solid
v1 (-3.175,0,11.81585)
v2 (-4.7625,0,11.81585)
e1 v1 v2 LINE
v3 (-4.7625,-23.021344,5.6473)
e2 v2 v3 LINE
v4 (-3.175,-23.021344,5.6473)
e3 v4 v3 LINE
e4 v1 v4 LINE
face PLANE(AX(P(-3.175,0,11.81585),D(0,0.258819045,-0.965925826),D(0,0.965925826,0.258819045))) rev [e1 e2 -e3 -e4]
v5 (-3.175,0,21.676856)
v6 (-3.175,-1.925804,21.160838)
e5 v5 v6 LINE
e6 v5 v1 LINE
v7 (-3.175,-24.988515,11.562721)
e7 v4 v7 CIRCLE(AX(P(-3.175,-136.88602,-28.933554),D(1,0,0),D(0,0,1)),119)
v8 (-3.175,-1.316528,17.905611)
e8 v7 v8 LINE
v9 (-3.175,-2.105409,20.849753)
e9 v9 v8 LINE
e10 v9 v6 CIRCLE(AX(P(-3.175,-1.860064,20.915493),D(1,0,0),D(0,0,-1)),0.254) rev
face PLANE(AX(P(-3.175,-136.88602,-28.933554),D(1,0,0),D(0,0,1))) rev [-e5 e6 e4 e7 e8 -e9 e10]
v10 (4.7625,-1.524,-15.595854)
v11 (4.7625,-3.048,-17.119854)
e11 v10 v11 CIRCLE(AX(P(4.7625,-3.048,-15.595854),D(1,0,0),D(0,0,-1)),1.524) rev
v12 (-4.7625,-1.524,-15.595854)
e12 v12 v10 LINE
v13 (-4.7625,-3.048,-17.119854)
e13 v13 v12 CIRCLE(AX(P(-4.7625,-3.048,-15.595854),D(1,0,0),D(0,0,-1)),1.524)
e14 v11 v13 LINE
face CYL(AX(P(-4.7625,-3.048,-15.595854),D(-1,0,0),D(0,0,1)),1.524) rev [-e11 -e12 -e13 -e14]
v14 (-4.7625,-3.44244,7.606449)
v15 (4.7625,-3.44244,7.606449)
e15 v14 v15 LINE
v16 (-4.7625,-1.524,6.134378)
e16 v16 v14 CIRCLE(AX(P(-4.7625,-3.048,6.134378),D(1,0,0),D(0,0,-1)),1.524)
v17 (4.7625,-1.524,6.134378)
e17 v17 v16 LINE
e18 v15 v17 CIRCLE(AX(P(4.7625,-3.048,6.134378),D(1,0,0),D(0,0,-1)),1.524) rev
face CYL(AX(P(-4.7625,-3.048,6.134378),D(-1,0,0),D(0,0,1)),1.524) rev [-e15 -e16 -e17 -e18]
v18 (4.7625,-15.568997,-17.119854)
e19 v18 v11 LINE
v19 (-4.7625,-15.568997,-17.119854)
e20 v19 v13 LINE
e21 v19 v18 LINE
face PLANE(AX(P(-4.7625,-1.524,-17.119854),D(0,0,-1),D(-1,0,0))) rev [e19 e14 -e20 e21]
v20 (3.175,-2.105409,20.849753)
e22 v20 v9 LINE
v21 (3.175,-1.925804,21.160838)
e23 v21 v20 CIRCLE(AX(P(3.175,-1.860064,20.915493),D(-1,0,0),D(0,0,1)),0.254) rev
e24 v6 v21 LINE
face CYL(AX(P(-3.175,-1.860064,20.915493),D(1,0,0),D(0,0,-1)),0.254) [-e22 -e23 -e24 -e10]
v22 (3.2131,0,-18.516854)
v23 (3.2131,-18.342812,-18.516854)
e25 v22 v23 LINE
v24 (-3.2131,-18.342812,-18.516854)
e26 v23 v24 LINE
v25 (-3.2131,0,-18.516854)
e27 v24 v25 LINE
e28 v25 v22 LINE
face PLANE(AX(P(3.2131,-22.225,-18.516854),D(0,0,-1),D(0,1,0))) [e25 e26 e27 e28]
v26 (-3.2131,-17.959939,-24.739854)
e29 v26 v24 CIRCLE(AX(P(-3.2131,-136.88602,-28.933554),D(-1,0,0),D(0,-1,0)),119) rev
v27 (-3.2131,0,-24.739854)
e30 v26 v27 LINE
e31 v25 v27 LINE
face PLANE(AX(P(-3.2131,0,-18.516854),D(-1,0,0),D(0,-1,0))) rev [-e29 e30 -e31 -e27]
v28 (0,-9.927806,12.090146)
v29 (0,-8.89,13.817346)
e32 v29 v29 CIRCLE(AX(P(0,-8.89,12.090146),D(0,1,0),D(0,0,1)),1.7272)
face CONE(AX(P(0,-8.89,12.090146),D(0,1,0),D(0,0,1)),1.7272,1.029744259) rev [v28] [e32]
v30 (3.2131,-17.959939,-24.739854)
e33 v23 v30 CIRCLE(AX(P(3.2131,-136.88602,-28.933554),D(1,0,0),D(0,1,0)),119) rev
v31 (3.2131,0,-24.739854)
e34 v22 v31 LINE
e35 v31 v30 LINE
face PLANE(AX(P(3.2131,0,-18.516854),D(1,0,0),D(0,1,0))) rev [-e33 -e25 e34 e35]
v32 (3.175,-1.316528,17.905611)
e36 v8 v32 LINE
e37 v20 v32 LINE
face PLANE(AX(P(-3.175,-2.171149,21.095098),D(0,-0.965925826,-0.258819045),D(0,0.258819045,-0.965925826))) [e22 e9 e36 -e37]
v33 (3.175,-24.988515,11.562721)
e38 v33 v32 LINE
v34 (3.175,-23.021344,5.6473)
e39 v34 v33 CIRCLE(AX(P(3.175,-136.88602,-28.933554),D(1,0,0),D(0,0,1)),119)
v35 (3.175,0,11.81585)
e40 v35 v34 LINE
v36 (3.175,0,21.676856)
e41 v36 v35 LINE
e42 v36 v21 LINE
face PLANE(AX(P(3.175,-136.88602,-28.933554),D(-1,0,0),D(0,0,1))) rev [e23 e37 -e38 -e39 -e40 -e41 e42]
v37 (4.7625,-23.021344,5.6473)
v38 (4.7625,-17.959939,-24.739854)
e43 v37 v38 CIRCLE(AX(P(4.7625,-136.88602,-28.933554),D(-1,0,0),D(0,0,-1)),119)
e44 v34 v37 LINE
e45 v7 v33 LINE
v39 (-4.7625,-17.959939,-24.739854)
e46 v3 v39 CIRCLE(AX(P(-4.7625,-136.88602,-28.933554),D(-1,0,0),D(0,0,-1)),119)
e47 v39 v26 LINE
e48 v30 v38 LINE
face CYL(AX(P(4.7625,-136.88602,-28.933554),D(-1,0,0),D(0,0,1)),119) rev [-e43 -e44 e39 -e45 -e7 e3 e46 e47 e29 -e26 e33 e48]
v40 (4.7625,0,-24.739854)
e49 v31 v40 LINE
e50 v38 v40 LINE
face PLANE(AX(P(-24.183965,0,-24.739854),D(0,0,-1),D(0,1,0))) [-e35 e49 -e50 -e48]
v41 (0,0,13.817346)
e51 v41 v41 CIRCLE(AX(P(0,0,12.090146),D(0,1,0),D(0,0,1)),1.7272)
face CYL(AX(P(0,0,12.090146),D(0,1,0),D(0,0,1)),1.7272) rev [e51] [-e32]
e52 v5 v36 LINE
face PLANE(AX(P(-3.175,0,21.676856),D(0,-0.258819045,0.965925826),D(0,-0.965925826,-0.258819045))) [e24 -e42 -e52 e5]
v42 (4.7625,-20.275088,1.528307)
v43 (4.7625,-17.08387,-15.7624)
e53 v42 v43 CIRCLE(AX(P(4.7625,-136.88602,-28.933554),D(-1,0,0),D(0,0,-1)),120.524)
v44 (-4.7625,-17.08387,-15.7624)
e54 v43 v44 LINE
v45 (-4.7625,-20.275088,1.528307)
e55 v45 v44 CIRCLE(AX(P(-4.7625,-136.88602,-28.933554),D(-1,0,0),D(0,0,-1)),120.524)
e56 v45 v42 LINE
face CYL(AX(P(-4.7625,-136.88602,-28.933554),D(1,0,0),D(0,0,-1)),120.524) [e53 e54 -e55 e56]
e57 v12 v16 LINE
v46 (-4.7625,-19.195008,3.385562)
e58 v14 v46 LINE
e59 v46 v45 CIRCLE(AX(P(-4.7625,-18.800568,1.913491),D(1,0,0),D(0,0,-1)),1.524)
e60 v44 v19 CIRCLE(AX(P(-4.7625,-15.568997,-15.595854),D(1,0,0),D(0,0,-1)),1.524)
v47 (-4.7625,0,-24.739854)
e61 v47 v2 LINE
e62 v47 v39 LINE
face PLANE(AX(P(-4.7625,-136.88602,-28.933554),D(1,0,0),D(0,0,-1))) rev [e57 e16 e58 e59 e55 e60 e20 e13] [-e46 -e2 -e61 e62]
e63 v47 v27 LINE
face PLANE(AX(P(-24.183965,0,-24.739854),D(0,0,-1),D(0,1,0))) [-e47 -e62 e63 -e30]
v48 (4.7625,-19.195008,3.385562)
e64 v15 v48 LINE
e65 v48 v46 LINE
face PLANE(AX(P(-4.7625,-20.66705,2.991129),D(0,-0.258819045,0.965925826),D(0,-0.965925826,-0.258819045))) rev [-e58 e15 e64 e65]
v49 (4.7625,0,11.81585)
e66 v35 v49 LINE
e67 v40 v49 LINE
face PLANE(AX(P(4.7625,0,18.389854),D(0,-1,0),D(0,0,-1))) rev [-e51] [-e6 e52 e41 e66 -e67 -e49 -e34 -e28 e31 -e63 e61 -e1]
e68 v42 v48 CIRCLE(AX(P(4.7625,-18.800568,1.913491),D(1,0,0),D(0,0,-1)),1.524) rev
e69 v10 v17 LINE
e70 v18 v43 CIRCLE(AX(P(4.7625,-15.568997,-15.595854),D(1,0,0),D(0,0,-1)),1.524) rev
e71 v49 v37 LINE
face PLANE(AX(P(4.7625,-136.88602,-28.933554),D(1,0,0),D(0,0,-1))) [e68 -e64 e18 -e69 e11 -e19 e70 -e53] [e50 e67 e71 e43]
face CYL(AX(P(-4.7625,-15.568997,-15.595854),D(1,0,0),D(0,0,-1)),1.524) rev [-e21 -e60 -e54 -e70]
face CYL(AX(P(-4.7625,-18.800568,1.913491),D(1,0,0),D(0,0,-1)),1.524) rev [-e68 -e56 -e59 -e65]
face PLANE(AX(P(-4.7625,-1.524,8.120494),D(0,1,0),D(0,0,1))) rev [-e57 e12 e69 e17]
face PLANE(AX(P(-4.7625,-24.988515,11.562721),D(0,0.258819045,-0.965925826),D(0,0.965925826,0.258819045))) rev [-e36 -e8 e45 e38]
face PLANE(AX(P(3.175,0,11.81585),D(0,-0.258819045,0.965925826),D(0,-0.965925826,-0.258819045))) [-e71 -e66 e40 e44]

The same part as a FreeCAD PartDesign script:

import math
import FreeCAD as App
import Part
import Sketcher
Q = App.Units.Quantity


def edges_at(feature, points):
    """Names of the edges that pass closest to the given points."""
    edges = feature.Shape.Edges
    near = lambda p: min(range(len(edges)), key=lambda i: edges[i].distToShape(Part.Vertex(*p))[0])
    return sorted({f"Edge{near(p) + 1}" for p in points})


def add_polygon(sketch, points):
    """Adds a closed chain of lines whose ends are joined by coincident constraints."""
    first, n = sketch.GeometryCount, len(points)
    for a, b in zip(points, points[1:] + points[:1]):
        sketch.addGeometry(Part.LineSegment(App.Vector(*a, 0), App.Vector(*b, 0)), False)
    for i in range(n):
        sketch.addConstraint(Sketcher.Constraint("Coincident", first + i, 2, first + (i + 1) % n, 1))

doc = App.newDocument("Part")
params = doc.addObject("Spreadsheet::Sheet", "Params")
for row, (alias, value) in enumerate([
    ("pad1_length", "0.375 in"),
    ("sketch2_diameter", "0.136 in"),
    ("hole_diameter", "0.136 in"),
    ("hole_depth", "0.35 in"),
    ("sketch3_height", "0.25 in"),
    ("pad2_length", "0.375 in"),
    ("sketch4_width", "0.253 in"),
    ("sketch4_height", "0.875 in"),
    ("pocket1_length", "0.245 in"),
    ("pocket2_length", "0.0625 in"),
    ("fillet_radius", "0.06 in"),
    ("sketch7_length", "0.125 in"),
    ("sketch7_length2", "0.055 in"),
    ("pad3_length", "0.25 in"),
    ("fillet2_radius", "0.01 in"),
    ("sketch8_length", "0.005 in"),
], start=1):
    params.set(f"A{row}", alias)
    params.set(f"B{row}", "=" + value)
    params.setAlias(f"B{row}", alias)

body = doc.addObject("PartDesign::Body", "Body")

# Sketch on YZ plane
sketch1 = body.newObject("Sketcher::SketchObject", "Sketch")
sketch1.AttachmentSupport = (doc.getObject("YZ_Plane"), [""])
sketch1.MapMode = "FlatFace"
sketch1.addGeometry([
    Part.LineSegment(App.Vector(0, -18.389854, 0), App.Vector(0, 18.389854, 0)),
    Part.LineSegment(App.Vector(0, 18.389854, 0), App.Vector(-25.031958, 11.682561, 0)),
    Part.ArcOfCircle(Part.Circle(App.Vector(-136.88602, -28.933554, 0), App.Vector(0, 0, 1), 119), math.radians(5.083216), math.radians(19.956822)),
    Part.LineSegment(App.Vector(-18.35404, -18.389854, 0), App.Vector(0, -18.389854, 0)),
], False)
sketch1.addConstraint([
    Sketcher.Constraint("Coincident", 0, 2, 1, 1),
    Sketcher.Constraint("Coincident", 1, 2, 2, 2),
    Sketcher.Constraint("Coincident", 2, 1, 3, 1),
    Sketcher.Constraint("Coincident", 3, 2, 0, 1),
    Sketcher.Constraint("Vertical", 0),
    Sketcher.Constraint("Horizontal", 3),
    Sketcher.Constraint("Symmetric", 0, 2, 3, 2, -1, 1),
    Sketcher.Constraint("Angle", 1, Q("-165 deg")),
    Sketcher.Constraint("Radius", 2, 119.0),
    Sketcher.Constraint("DistanceX", 3, 1, 3, 2, Q("0.7226 in")),
    Sketcher.Constraint("DistanceY", 2, 3, 2, 1, 10.5437),
    Sketcher.Constraint("Distance", 1, 25.91499),
])
pad1 = body.newObject("PartDesign::Pad", "Pad")
pad1.Profile = sketch1
pad1.setExpression("Length", "Params.pad1_length")
pad1.Midplane = True

# Sketch on XZ plane
sketch2 = body.newObject("Sketcher::SketchObject", "Sketch001")
sketch2.AttachmentSupport = (doc.getObject("XZ_Plane"), [""])
sketch2.MapMode = "FlatFace"
sketch2.addGeometry(Part.Circle(App.Vector(0, 12.090146, 0), App.Vector(0, 0, 1), 1.7272), False)
sketch2.addConstraint([
    Sketcher.Constraint("PointOnObject", 0, 3, -2),
    Sketcher.Constraint("Diameter", 0, Q("0.136 in")),
    Sketcher.Constraint("DistanceY", -1, 1, 0, 3, 12.090146),
])
sketch2.setExpression("Constraints[1]", "Params.sketch2_diameter")
doc.recompute()
hole = body.newObject("PartDesign::Hole", "Hole")
hole.Profile = sketch2
hole.ThreadType = "None"
hole.setExpression("Diameter", "Params.hole_diameter")
hole.DepthType = "Dimension"
hole.setExpression("Depth", "Params.hole_depth")
hole.DrillPoint = "Angled"
hole.DrillPointAngle = 118
hole.Reversed = True

# Sketch on YZ plane
sketch3 = body.newObject("Sketcher::SketchObject", "Sketch002")
sketch3.AttachmentSupport = (doc.getObject("YZ_Plane"), [""])
sketch3.MapMode = "FlatFace"
sketch3.AttachmentOffset = App.Placement(App.Vector(0, 0, 0.1875 * 25.4), App.Rotation())
sketch3.addGeometry([
    Part.LineSegment(App.Vector(0, -24.739854, 0), App.Vector(0, -18.389854, 0)),
    Part.LineSegment(App.Vector(0, -18.389854, 0), App.Vector(-18.35404, -18.389854, 0)),
    Part.ArcOfCircle(Part.Circle(App.Vector(-136.886019, -28.933554, 0), App.Vector(0, 0, 1), 118.999998), math.radians(2.019589), math.radians(5.083216)),
    Part.LineSegment(App.Vector(-17.959939, -24.739854, 0), App.Vector(0, -24.739854, 0)),
], False)
sketch3.addConstraint([
    Sketcher.Constraint("Coincident", 0, 2, 1, 1),
    Sketcher.Constraint("Coincident", 1, 2, 2, 2),
    Sketcher.Constraint("Coincident", 2, 1, 3, 1),
    Sketcher.Constraint("Coincident", 3, 2, 0, 1),
    Sketcher.Constraint("Vertical", 0),
    Sketcher.Constraint("Horizontal", 1),
    Sketcher.Constraint("Horizontal", 3),
    Sketcher.Constraint("PointOnObject", 0, 2, -2),
    Sketcher.Constraint("DistanceY", 0, 1, 0, 2, Q("0.25 in")),
    Sketcher.Constraint("Radius", 2, 118.999998),
    Sketcher.Constraint("DistanceX", 1, 2, 1, 1, Q("0.7226 in")),
    Sketcher.Constraint("DistanceX", 3, 1, 3, 2, 17.959939),
    Sketcher.Constraint("DistanceY", 2, 3, -1, 1, 28.933554),
])
sketch3.setExpression("Constraints[8]", "Params.sketch3_height")
pad2 = body.newObject("PartDesign::Pad", "Pad001")
pad2.Profile = sketch3
pad2.setExpression("Length", "Params.pad2_length")
pad2.Reversed = True

# Sketch on XY plane
sketch4 = body.newObject("Sketcher::SketchObject", "Sketch003")
sketch4.AttachmentSupport = (doc.getObject("XY_Plane"), [""])
sketch4.MapMode = "FlatFace"
sketch4.AttachmentOffset = App.Placement(App.Vector(0, 0, -24.739854), App.Rotation())
add_polygon(sketch4, [(3.2131, 0), (3.2131, -22.225), (-3.2131, -22.225), (-3.2131, 0)])  # lines 0-3
sketch4.addConstraint([
    Sketcher.Constraint("Vertical", 0),
    Sketcher.Constraint("Horizontal", 1),
    Sketcher.Constraint("Vertical", 2),
    Sketcher.Constraint("Horizontal", 3),
    Sketcher.Constraint("Symmetric", 2, 2, 3, 2, -1, 1),
    Sketcher.Constraint("DistanceX", 1, 2, 1, 1, Q("0.253 in")),
    Sketcher.Constraint("DistanceY", 0, 2, 0, 1, Q("0.875 in")),
])
sketch4.setExpression("Constraints[9]", "Params.sketch4_width")
sketch4.setExpression("Constraints[10]", "Params.sketch4_height")
pocket1 = body.newObject("PartDesign::Pocket", "Pocket")
pocket1.Profile = sketch4
pocket1.setExpression("Length", "Params.pocket1_length")
pocket1.Reversed = True

# Sketch on YZ plane
sketch5 = body.newObject("Sketcher::SketchObject", "Sketch004")
sketch5.AttachmentSupport = (doc.getObject("YZ_Plane"), [""])
sketch5.MapMode = "FlatFace"
sketch5.AttachmentOffset = App.Placement(App.Vector(0, 0, 0.1875 * 25.4), App.Rotation())
sketch5.addGeometry([
    Part.LineSegment(App.Vector(0, 18.389854, 0), App.Vector(0, 11.81585, 0)),
    Part.LineSegment(App.Vector(0, 11.81585, 0), App.Vector(-23.021344, 5.6473, 0)),
    Part.ArcOfCircle(Part.Circle(App.Vector(-136.886021, -28.933554, 0), App.Vector(0, 0, 1), 119), math.radians(16.893606), math.radians(19.956822)),
    Part.LineSegment(App.Vector(-25.031958, 11.682561, 0), App.Vector(0, 18.389854, 0)),
], False)
sketch5.addConstraint([
    Sketcher.Constraint("Coincident", 0, 2, 1, 1),
    Sketcher.Constraint("Coincident", 1, 2, 2, 1),
    Sketcher.Constraint("Coincident", 2, 2, 3, 1),
    Sketcher.Constraint("Coincident", 3, 2, 0, 1),
    Sketcher.Constraint("Vertical", 0),
    Sketcher.Constraint("PointOnObject", 0, 2, -2),
    Sketcher.Constraint("Parallel", 1, 3),
    Sketcher.Constraint("Angle", 1, Q("-165 deg")),
    Sketcher.Constraint("Radius", 2, 119.0),
    Sketcher.Constraint("DistanceY", -1, 1, 1, 2, 5.6473),
    Sketcher.Constraint("Distance", 1, 23.833449),
    Sketcher.Constraint("Distance", 3, 25.91499),
    Sketcher.Constraint("DistanceY", 0, 2, 0, 1, 6.574004),
])
pocket2 = body.newObject("PartDesign::Pocket", "Pocket001")
pocket2.Profile = sketch5
pocket2.setExpression("Length", "Params.pocket2_length")
doc.recompute()

mirrored = body.newObject("PartDesign::Mirrored", "Mirrored")
mirrored.Originals = [pocket2]
mirrored.MirrorPlane = (doc.getObject("YZ_Plane"), [""])
body.Tip = mirrored

# Sketch on YZ plane
sketch6 = body.newObject("Sketcher::SketchObject", "Sketch005")
sketch6.AttachmentSupport = (doc.getObject("YZ_Plane"), [""])
sketch6.MapMode = "FlatFace"
sketch6.addGeometry([
    Part.LineSegment(App.Vector(-1.524, -17.119854, 0), App.Vector(-1.524, 8.120494, 0)),
    Part.LineSegment(App.Vector(-1.524, 8.120494, 0), App.Vector(-20.66705, 2.991129, 0)),
    Part.ArcOfCircle(Part.Circle(App.Vector(-136.886021, -28.933554, 0), App.Vector(0, 0, 1), 120.524), math.radians(5.625135), math.radians(15.359964)),
    Part.LineSegment(App.Vector(-16.942404, -17.119854, 0), App.Vector(-1.524, -17.119854, 0)),
], False)
sketch6.addConstraint([
    Sketcher.Constraint("Coincident", 0, 2, 1, 1),
    Sketcher.Constraint("Coincident", 1, 2, 2, 2),
    Sketcher.Constraint("Coincident", 2, 1, 3, 1),
    Sketcher.Constraint("Coincident", 3, 2, 0, 1),
    Sketcher.Constraint("Vertical", 0),
    Sketcher.Constraint("Horizontal", 3),
    Sketcher.Constraint("Angle", 1, Q("-165 deg")),
    Sketcher.Constraint("DistanceX", 0, 2, -1, 1, Q("0.06 in")),
    Sketcher.Constraint("Radius", 2, 120.524),
    Sketcher.Constraint("DistanceY", 2, 3, 2, 1, 11.8137),
    Sketcher.Constraint("DistanceX", 3, 1, 3, 2, 15.418404),
    Sketcher.Constraint("DistanceY", 0, 1, 0, 2, 25.240348),
    Sketcher.Constraint("DistanceY", -1, 1, 1, 2, 2.991129),
])
pocket3 = body.newObject("PartDesign::Pocket", "Pocket002")
pocket3.Profile = sketch6
pocket3.Type = "ThroughAll"
pocket3.Midplane = True
doc.recompute()

fillet = body.newObject("PartDesign::Fillet", "Fillet")
fillet.Base = (pocket3, edges_at(pocket3, [
    (0, -20.667, 2.991),
    (0, -1.524, 8.12),
    (0, -1.524, -17.12),
    (0, -16.942, -17.12),
]))
fillet.setExpression("Radius", "Params.fillet_radius")

# Sketch on YZ plane
sketch7 = body.newObject("Sketcher::SketchObject", "Sketch006")
sketch7.AttachmentSupport = (doc.getObject("YZ_Plane"), [""])
sketch7.MapMode = "FlatFace"
sketch7.AttachmentOffset = App.Placement(App.Vector(0, 0, 0.125 * 25.4), App.Rotation())
add_polygon(sketch7, [(0, 18.389854), (0, 21.676856), (-2.171149, 21.095098), (-1.349398, 18.028284)])  # lines 0-3
sketch7.addConstraint([
    Sketcher.Constraint("Vertical", 0),
    Sketcher.Constraint("PointOnObject", 0, 2, -2),
    Sketcher.Constraint("Perpendicular", 1, 2),
    Sketcher.Constraint("Perpendicular", 2, 3),
    Sketcher.Constraint("Angle", 1, Q("-165 deg")),
    Sketcher.Constraint("Distance", 2, Q("0.125 in")),
    Sketcher.Constraint("Distance", 3, Q("0.055 in")),
    Sketcher.Constraint("DistanceY", -1, 1, 1, 2, 21.095098),
])
sketch7.setExpression("Constraints[9]", "Params.sketch7_length")
sketch7.setExpression("Constraints[10]", "Params.sketch7_length2")
pad3 = body.newObject("PartDesign::Pad", "Pad002")
pad3.Profile = sketch7
pad3.setExpression("Length", "Params.pad3_length")
pad3.Reversed = True
doc.recompute()

fillet2 = body.newObject("PartDesign::Fillet", "Fillet001")
fillet2.Base = (pad3, edges_at(pad3, [(0, -2.171, 21.095)]))
fillet2.setExpression("Radius", "Params.fillet2_radius")

# Sketch on YZ plane
sketch8 = body.newObject("Sketcher::SketchObject", "Sketch007")
sketch8.AttachmentSupport = (doc.getObject("YZ_Plane"), [""])
sketch8.MapMode = "FlatFace"
sketch8.AttachmentOffset = App.Placement(App.Vector(0, 0, 0.125 * 25.4), App.Rotation())
sketch8.addGeometry([
    Part.LineSegment(App.Vector(-1.316528, 17.905611, 0), App.Vector(-1.349398, 18.028284, 0)),
    Part.LineSegment(App.Vector(-1.349398, 18.028284, 0), App.Vector(-25.031958, 11.682561, 0)),
    Part.ArcOfCircle(Part.Circle(App.Vector(-136.883352, -28.932586, 0), App.Vector(0, 0, 1), 118.997161), math.radians(19.895447), math.radians(19.956822)),
    Part.LineSegment(App.Vector(-24.988515, 11.562721, 0), App.Vector(-1.316528, 17.905611, 0)),
], False)
sketch8.addConstraint([
    Sketcher.Constraint("Coincident", 0, 2, 1, 1),
    Sketcher.Constraint("Coincident", 1, 2, 2, 2),
    Sketcher.Constraint("Coincident", 2, 1, 3, 1),
    Sketcher.Constraint("Coincident", 3, 2, 0, 1),
    Sketcher.Constraint("Perpendicular", 0, 1),
    Sketcher.Constraint("Parallel", 1, 3),
    Sketcher.Constraint("Angle", 0, Q("105 deg")),
    Sketcher.Constraint("Distance", 0, Q("0.005 in")),
    Sketcher.Constraint("Radius", 2, 118.997161),
    Sketcher.Constraint("DistanceX", 2, 1, -1, 1, Q("0.9837998 in")),
    Sketcher.Constraint("DistanceX", 0, 2, -1, 1, 1.349398),
    Sketcher.Constraint("DistanceX", 2, 3, -1, 1, 136.883352),
    Sketcher.Constraint("DistanceY", -1, 1, 1, 2, 11.682561),
])
sketch8.setExpression("Constraints[7]", "Params.sketch8_length")
pocket4 = body.newObject("PartDesign::Pocket", "Pocket003")
pocket4.Profile = sketch8
pocket4.Type = "ThroughAll"

doc.recompute()
